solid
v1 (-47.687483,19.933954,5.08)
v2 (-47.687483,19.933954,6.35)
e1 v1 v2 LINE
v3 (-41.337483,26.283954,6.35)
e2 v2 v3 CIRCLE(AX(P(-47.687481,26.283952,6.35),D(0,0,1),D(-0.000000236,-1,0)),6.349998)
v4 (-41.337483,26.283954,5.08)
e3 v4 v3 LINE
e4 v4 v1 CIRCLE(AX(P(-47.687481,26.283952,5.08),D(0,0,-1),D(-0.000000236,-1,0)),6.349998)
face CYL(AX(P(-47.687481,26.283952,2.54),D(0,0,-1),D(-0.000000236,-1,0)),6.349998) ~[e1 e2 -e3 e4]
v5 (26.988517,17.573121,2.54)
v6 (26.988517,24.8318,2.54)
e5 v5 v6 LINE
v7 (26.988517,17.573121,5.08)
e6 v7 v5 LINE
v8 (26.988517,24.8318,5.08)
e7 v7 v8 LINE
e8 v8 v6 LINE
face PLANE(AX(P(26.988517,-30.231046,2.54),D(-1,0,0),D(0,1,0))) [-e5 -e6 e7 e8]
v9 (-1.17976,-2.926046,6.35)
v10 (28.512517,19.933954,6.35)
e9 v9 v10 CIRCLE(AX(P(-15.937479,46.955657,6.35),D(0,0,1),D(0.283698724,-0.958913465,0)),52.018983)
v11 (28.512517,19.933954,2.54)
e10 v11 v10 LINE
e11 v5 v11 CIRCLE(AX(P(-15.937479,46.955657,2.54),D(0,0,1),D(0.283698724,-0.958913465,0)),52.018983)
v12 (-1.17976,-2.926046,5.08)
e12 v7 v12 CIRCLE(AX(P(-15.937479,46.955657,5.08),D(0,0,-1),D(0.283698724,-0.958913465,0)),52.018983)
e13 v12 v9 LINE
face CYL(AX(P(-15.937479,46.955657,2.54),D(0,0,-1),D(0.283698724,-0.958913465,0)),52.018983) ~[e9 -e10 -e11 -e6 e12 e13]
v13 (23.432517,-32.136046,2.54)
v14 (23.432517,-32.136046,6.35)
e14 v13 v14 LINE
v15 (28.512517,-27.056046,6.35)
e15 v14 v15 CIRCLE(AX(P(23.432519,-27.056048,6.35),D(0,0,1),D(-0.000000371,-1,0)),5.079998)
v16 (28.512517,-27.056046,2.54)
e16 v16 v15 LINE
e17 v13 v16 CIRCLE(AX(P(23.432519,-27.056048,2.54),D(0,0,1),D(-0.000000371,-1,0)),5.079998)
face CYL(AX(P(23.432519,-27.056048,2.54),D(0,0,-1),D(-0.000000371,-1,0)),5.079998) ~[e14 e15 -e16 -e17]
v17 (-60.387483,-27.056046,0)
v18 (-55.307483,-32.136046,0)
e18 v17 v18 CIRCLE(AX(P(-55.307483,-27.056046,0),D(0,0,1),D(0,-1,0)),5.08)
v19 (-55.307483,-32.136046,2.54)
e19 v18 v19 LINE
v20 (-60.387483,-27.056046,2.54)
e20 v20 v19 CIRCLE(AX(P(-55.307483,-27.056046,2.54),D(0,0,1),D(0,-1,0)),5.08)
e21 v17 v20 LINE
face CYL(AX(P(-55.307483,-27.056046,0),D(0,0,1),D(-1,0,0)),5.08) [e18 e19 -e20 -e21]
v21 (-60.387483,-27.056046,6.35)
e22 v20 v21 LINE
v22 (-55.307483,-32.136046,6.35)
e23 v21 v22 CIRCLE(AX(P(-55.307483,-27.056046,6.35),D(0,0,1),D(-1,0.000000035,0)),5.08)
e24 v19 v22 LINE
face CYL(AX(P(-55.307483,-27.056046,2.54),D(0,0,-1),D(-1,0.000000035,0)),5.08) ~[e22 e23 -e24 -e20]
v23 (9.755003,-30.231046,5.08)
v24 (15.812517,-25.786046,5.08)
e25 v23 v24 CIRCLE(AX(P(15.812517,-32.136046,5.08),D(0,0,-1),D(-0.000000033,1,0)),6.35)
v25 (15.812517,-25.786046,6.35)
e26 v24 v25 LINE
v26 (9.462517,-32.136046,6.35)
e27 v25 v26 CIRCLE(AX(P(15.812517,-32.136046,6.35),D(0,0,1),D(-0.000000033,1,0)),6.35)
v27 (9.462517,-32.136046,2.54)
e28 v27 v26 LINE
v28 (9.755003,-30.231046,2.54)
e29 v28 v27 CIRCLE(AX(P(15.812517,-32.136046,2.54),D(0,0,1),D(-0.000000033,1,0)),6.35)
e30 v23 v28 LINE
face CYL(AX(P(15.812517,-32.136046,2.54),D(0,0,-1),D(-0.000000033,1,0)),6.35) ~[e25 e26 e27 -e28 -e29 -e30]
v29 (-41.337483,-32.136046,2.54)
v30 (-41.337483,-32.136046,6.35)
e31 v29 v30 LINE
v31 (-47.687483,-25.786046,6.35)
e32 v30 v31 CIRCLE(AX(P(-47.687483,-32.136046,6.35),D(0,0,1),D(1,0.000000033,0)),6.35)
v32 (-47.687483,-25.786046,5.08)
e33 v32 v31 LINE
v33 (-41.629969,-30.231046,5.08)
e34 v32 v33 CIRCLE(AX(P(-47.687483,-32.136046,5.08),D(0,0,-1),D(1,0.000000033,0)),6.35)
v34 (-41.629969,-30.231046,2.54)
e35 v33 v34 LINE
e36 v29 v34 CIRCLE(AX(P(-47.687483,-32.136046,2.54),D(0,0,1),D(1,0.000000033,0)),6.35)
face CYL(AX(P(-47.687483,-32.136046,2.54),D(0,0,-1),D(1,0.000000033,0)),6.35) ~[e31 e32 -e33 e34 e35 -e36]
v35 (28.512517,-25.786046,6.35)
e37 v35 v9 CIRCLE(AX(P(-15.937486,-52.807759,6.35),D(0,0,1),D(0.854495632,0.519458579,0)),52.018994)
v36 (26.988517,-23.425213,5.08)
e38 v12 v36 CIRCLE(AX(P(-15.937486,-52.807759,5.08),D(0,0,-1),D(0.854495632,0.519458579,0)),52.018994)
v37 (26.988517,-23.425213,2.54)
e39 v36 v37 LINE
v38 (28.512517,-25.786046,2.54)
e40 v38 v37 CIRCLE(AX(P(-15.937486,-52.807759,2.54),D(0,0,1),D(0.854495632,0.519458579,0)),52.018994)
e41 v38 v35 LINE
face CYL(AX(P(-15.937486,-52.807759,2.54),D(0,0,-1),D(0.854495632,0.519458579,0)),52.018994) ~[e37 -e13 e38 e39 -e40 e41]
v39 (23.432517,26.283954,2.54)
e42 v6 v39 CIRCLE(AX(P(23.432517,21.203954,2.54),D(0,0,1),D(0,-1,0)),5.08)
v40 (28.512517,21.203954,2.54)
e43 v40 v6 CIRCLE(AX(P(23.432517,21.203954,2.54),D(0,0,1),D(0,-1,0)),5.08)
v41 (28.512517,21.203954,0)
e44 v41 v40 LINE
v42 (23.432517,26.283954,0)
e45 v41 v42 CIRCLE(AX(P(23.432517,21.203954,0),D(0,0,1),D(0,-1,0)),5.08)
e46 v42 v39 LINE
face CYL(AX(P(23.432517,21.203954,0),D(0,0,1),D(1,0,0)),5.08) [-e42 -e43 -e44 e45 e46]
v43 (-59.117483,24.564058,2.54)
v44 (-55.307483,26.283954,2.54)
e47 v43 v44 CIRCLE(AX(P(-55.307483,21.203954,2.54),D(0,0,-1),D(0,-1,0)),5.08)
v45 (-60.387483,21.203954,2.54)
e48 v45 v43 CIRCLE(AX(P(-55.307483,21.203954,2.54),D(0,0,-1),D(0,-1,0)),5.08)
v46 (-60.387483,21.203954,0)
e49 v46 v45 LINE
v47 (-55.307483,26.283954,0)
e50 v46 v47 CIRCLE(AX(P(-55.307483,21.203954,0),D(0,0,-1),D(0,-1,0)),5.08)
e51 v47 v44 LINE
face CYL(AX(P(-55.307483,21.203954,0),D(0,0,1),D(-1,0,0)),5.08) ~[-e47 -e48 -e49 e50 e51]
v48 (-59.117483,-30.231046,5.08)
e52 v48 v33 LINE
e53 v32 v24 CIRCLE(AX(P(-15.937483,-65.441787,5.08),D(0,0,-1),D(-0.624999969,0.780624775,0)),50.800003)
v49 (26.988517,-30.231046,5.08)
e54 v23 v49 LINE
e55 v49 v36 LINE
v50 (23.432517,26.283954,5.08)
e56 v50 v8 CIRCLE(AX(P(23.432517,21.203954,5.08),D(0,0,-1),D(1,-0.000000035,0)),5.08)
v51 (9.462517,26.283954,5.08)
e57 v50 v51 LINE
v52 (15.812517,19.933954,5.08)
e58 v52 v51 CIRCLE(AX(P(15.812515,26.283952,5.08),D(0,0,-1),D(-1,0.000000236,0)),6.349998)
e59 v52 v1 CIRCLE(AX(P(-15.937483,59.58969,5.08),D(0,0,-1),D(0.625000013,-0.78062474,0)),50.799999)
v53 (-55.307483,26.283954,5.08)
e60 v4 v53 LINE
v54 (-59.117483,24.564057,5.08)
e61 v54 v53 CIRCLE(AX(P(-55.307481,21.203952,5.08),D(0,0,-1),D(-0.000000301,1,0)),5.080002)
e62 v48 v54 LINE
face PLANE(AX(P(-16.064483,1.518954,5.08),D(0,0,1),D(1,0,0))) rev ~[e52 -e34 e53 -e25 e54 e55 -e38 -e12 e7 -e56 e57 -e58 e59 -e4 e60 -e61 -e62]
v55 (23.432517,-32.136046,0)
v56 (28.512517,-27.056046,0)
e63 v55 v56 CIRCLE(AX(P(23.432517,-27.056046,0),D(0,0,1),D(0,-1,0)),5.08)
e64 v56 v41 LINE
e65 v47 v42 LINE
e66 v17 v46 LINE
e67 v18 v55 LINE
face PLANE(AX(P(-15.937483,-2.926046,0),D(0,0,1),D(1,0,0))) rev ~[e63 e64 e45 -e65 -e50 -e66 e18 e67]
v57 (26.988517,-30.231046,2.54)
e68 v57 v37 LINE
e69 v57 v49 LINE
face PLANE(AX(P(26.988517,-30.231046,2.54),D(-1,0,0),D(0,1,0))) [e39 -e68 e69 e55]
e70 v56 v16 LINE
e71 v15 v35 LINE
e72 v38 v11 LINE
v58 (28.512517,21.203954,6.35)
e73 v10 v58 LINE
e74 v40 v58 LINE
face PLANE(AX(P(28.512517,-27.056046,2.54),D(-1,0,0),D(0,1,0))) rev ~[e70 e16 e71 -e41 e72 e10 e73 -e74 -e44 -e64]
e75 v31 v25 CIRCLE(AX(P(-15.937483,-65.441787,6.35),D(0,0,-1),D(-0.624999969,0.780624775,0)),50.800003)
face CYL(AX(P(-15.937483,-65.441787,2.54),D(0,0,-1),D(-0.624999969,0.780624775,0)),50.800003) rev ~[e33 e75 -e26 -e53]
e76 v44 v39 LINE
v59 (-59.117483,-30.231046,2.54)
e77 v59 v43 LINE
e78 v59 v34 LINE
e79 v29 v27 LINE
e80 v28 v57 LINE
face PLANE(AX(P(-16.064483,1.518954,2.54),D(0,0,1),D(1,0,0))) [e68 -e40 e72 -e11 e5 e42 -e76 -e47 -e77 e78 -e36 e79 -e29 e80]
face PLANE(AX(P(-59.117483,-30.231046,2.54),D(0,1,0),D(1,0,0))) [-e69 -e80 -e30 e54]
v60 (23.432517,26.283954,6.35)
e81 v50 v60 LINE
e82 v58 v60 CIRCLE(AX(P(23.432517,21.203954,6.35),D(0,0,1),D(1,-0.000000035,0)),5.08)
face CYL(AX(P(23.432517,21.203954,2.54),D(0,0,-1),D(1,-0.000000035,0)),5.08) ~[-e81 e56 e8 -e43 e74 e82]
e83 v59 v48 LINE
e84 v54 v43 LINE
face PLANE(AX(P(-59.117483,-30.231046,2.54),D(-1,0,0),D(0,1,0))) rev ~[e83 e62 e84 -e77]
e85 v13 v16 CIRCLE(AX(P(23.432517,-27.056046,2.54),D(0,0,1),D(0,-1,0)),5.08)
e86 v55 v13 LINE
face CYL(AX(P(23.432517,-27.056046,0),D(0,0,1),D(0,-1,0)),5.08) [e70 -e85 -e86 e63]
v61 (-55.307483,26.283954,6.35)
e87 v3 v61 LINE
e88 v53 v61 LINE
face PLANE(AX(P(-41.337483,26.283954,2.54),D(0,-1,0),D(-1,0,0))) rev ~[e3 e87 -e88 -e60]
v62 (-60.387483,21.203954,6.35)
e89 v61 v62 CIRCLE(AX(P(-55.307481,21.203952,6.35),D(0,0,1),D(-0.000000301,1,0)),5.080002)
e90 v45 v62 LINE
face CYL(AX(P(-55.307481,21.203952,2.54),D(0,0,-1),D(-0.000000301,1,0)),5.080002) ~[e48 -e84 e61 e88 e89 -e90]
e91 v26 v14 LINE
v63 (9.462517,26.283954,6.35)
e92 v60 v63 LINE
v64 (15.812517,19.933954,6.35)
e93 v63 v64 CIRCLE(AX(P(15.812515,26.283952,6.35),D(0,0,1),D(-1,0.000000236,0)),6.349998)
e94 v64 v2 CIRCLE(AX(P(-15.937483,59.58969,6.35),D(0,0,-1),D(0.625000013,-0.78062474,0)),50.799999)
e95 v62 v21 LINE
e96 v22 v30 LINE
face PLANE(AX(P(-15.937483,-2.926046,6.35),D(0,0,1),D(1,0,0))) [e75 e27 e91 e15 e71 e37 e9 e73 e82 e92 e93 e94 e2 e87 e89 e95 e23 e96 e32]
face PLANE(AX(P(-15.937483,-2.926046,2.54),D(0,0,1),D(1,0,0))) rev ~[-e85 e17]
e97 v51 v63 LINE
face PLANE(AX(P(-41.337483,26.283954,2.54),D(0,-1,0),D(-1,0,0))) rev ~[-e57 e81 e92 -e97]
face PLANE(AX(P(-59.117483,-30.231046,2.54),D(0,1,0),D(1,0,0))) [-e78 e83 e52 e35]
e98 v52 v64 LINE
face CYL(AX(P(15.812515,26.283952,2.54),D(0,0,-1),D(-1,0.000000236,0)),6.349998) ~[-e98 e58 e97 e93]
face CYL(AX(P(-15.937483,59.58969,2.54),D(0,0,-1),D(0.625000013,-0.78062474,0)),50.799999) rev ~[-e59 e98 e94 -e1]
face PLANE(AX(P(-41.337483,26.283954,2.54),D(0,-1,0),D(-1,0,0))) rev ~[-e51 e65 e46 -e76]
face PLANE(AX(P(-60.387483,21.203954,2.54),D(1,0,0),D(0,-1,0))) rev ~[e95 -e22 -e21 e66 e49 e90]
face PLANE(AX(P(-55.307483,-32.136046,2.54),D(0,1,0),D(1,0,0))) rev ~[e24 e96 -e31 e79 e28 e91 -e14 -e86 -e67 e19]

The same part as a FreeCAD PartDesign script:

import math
import FreeCAD as App
import Part
import Sketcher

V = App.Vector
Q = App.Units.Quantity


def edges_at(feature, points):
    """Names of the edges that pass closest to the given points."""
    edges = feature.Shape.Edges
    near = lambda p: min(range(len(edges)), key=lambda i: edges[i].distToShape(Part.Vertex(*p))[0])
    return sorted({f"Edge{near(p) + 1}" for p in points})


def add_polygon(sketch, points):
    """Adds a closed chain of lines whose ends are joined by coincident constraints."""
    first, n = sketch.GeometryCount, len(points)
    for a, b in zip(points, points[1:] + points[:1]):
        sketch.addGeometry(Part.LineSegment(App.Vector(*a, 0), App.Vector(*b, 0)), False)
    for i in range(n):
        sketch.addConstraint(Sketcher.Constraint("Coincident", first + i, 2, first + (i + 1) % n, 1))

doc = App.newDocument("Part")
body = doc.addObject("PartDesign::Body", "Body")

# Sketch on XY plane
sketch1 = body.newObject("Sketcher::SketchObject", "Sketch")
sketch1.AttachmentSupport = (doc.getObject("XY_Plane"), [""])
sketch1.MapMode = "FlatFace"
add_polygon(sketch1, [(-60.387483, 26.283954), (-60.387483, -32.136046), (28.512517, -32.136046), (28.512517, 26.283954)])  # lines 0-3
sketch1.addConstraint([
    Sketcher.Constraint("Vertical", 0),
    Sketcher.Constraint("Horizontal", 1),
    Sketcher.Constraint("Vertical", 2),
    Sketcher.Constraint("Horizontal", 3),
    Sketcher.Constraint("DistanceX", 1, 1, 1, 2, Q("3.5 in")),
    Sketcher.Constraint("DistanceY", 0, 2, 0, 1, Q("2.3 in")),
    Sketcher.Constraint("DistanceX", 0, 2, -1, 1, 60.387483),
    Sketcher.Constraint("DistanceY", 0, 2, -1, 1, 32.136046),
])
pad1 = body.newObject("PartDesign::Pad", "Pad")
pad1.Profile = sketch1
pad1.Length = Q("0.1 in")
doc.recompute()

fillet = body.newObject("PartDesign::Fillet", "Fillet")
fillet.Base = (pad1, edges_at(pad1, [
    (-60.387, 26.284, 1.27),
    (-60.387, -32.136, 1.27),
    (28.513, -32.136, 1.27),
    (28.513, 26.284, 1.27),
]))
fillet.Radius = Q("0.2 in")

# Sketch on XY plane
sketch2 = body.newObject("Sketcher::SketchObject", "Sketch001")
sketch2.AttachmentSupport = (doc.getObject("XY_Plane"), [""])
sketch2.MapMode = "FlatFace"
sketch2.AttachmentOffset = App.Placement(V(0, 0, 0.1 * 25.4), App.Rotation())
sketch2.addGeometry([
    Part.ArcOfCircle(Part.Circle(V(-55.307481, 21.203952, 0), V(0, 0, 1), 5.080002), math.radians(90.000017), math.radians(179.999983)),  # 0
    Part.LineSegment(V(-60.387483, 21.203954, 0), V(-60.387483, -27.056046, 0)),  # 1
    Part.ArcOfCircle(Part.Circle(V(-55.307483, -27.056046, 0), V(0, 0, 1), 5.08), math.radians(179.999998), math.radians(270.000002)),  # 2
    Part.LineSegment(V(-55.307483, -32.136046, 0), V(-41.337483, -32.136046, 0)),  # 3
    Part.ArcOfCircle(Part.Circle(V(-47.687483, -32.136046, 0), V(0, 0, 1), 6.35), math.radians(0.000002), math.radians(89.999998)),  # 4
    Part.ArcOfCircle(Part.Circle(V(-15.937483, -65.441787, 0), V(0, 0, 1), 50.800003), math.radians(51.317815), math.radians(128.682185)),  # 5
    Part.ArcOfCircle(Part.Circle(V(15.812517, -32.136046, 0), V(0, 0, 1), 6.35), math.radians(90.000002), math.radians(179.999998)),  # 6
    Part.LineSegment(V(9.462517, -32.136046, 0), V(23.432517, -32.136046, 0)),  # 7
    Part.ArcOfCircle(Part.Circle(V(23.432519, -27.056048, 0), V(0, 0, 1), 5.079998), math.radians(-90.000021), math.radians(0.000021)),  # 8
    Part.LineSegment(V(28.512517, -27.056046, 0), V(28.512517, -25.786046, 0)),  # 9
    Part.ArcOfCircle(Part.Circle(V(-15.937486, -52.807759, 0), V(0, 0, 1), 52.018994), math.radians(31.295941), math.radians(73.518915)),  # 10
    Part.ArcOfCircle(Part.Circle(V(-15.937479, 46.955657, 0), V(0, 0, 1), 52.018983), math.radians(-73.518919), math.radians(-31.295936)),  # 11
    Part.LineSegment(V(28.512517, 19.933954, 0), V(28.512517, 21.203954, 0)),  # 12
    Part.ArcOfCircle(Part.Circle(V(23.432517, 21.203954, 0), V(0, 0, 1), 5.08), math.radians(-0.000002), math.radians(90.000002)),  # 13
    Part.LineSegment(V(23.432517, 26.283954, 0), V(9.462517, 26.283954, 0)),  # 14
    Part.ArcOfCircle(Part.Circle(V(15.812515, 26.283953, 0), V(0, 0, 1), 6.349998), math.radians(179.999986), math.radians(270.000014)),  # 15
    Part.ArcOfCircle(Part.Circle(V(-15.937483, 59.58969, 0), V(0, 0, 1), 50.799999), math.radians(-128.682188), math.radians(-51.317812)),  # 16
    Part.ArcOfCircle(Part.Circle(V(-47.687481, 26.283953, 0), V(0, 0, 1), 6.349998), math.radians(-90.000014), math.radians(0.000014)),  # 17
    Part.LineSegment(V(-41.337483, 26.283954, 0), V(-55.307483, 26.283954, 0)),  # 18
], False)
sketch2.addConstraint([
    Sketcher.Constraint("Tangent", 0, 2, 1, 1),
    Sketcher.Constraint("Tangent", 1, 2, 2, 1),
    Sketcher.Constraint("Tangent", 2, 2, 3, 1),
    Sketcher.Constraint("Coincident", 3, 2, 4, 1),
    Sketcher.Constraint("Coincident", 4, 2, 5, 2),
    Sketcher.Constraint("Coincident", 5, 1, 6, 1),
    Sketcher.Constraint("Coincident", 6, 2, 7, 1),
    Sketcher.Constraint("Tangent", 7, 2, 8, 1),
    Sketcher.Constraint("Tangent", 8, 2, 9, 1),
    Sketcher.Constraint("Coincident", 9, 2, 10, 1),
    Sketcher.Constraint("Coincident", 10, 2, 11, 1),
    Sketcher.Constraint("Coincident", 11, 2, 12, 1),
    Sketcher.Constraint("Tangent", 12, 2, 13, 1),
    Sketcher.Constraint("Tangent", 13, 2, 14, 1),
    Sketcher.Constraint("Coincident", 14, 2, 15, 1),
    Sketcher.Constraint("Coincident", 15, 2, 16, 2),
    Sketcher.Constraint("Coincident", 16, 1, 17, 1),
    Sketcher.Constraint("Coincident", 17, 2, 18, 1),
    Sketcher.Constraint("Tangent", 18, 2, 0, 1),
    Sketcher.Constraint("Vertical", 1),
    Sketcher.Constraint("Horizontal", 3),
    Sketcher.Constraint("Horizontal", 7),
    Sketcher.Constraint("Vertical", 9),
    Sketcher.Constraint("Vertical", 12),
    Sketcher.Constraint("Horizontal", 14),
    Sketcher.Constraint("Horizontal", 18),
    Sketcher.Constraint("Equal", 0, 2),
    Sketcher.Constraint("Equal", 4, 6),
    Sketcher.Constraint("Equal", 2, 8),
    Sketcher.Constraint("Equal", 8, 13),
    Sketcher.Constraint("Equal", 6, 15),
    Sketcher.Constraint("Equal", 15, 17),
    Sketcher.Constraint("Horizontal", 4, 3, 6, 3),
    Sketcher.Constraint("Horizontal", 2, 3, 8, 3),
    Sketcher.Constraint("Horizontal", 0, 3, 13, 3),
    Sketcher.Constraint("Horizontal", 15, 3, 17, 3),
    Sketcher.Constraint("Horizontal", 6, 3, 2, 2),
    Sketcher.Constraint("Horizontal", 5, 1, 9, 2),
    Sketcher.Constraint("Horizontal", 17, 3, 13, 2),
    Sketcher.Constraint("Horizontal", 11, 2, 15, 2),
    Sketcher.Constraint("Vertical", 8, 3, 13, 3),
    Sketcher.Constraint("Vertical", 6, 3, 15, 3),
    Sketcher.Constraint("Vertical", 5, 3, 16, 3),
    Sketcher.Constraint("Vertical", 4, 3, 17, 3),
    Sketcher.Constraint("Vertical", 17, 3, 4, 2),
    Sketcher.Constraint("Vertical", 15, 3, 5, 1),
    Sketcher.Constraint("Vertical", 5, 1, 15, 2),
    Sketcher.Constraint("Equal", 3, 7),
    Sketcher.Constraint("Radius", 5, Q("2.0000001 in")),
    Sketcher.Constraint("Radius", 16, Q("2 in")),
    Sketcher.Constraint("Radius", 0, Q("0.2000001 in")),
    Sketcher.Constraint("Radius", 4, Q("0.25 in")),
    Sketcher.Constraint("DistanceY", 1, 2, 1, 1, Q("1.9 in")),
    Sketcher.Constraint("DistanceX", 3, 2, 10, 3, Q("0.9999999 in")),
    Sketcher.Constraint("DistanceX", 10, 3, 6, 2, Q("1.0000001 in")),
    Sketcher.Constraint("DistanceX", 17, 2, 11, 3, Q("1.0000002 in")),
    Sketcher.Constraint("DistanceX", 3, 1, 3, 2, Q("0.55 in")),
    Sketcher.Constraint("DistanceY", 5, 1, 10, 2, Q("0.9 in")),
    Sketcher.Constraint("Radius", 10, 52.018994),
    Sketcher.Constraint("DistanceX", 0, 3, -1, 1, 55.307481),
    Sketcher.Constraint("DistanceY", 10, 3, -1, 1, 52.807759),
])
pad2 = body.newObject("PartDesign::Pad", "Pad001")
pad2.Profile = sketch2
pad2.Length = Q("0.15 in")

# Sketch on XY plane
sketch3 = body.newObject("Sketcher::SketchObject", "Sketch002")
sketch3.AttachmentSupport = (doc.getObject("XY_Plane"), [""])
sketch3.MapMode = "FlatFace"
sketch3.AttachmentOffset = App.Placement(V(0, 0, 0.1 * 25.4), App.Rotation())
add_polygon(sketch3, [(-59.117483, 33.268954), (-59.117483, -30.231046), (26.988517, -30.231046), (26.988517, 33.268954)])  # lines 0-3
sketch3.addConstraint([
    Sketcher.Constraint("Vertical", 0),
    Sketcher.Constraint("Horizontal", 1),
    Sketcher.Constraint("Vertical", 2),
    Sketcher.Constraint("Horizontal", 3),
    Sketcher.Constraint("DistanceY", 0, 2, 0, 1, Q("2.5 in")),
    Sketcher.Constraint("DistanceX", 1, 1, 1, 2, Q("3.39 in")),
    Sketcher.Constraint("DistanceX", 0, 2, -1, 1, 59.117483),
    Sketcher.Constraint("DistanceY", 0, 2, -1, 1, 30.231046),
])
pocket1 = body.newObject("PartDesign::Pocket", "Pocket")
pocket1.Profile = sketch3
pocket1.Length = Q("0.1 in")
pocket1.Reversed = True

doc.recompute()
